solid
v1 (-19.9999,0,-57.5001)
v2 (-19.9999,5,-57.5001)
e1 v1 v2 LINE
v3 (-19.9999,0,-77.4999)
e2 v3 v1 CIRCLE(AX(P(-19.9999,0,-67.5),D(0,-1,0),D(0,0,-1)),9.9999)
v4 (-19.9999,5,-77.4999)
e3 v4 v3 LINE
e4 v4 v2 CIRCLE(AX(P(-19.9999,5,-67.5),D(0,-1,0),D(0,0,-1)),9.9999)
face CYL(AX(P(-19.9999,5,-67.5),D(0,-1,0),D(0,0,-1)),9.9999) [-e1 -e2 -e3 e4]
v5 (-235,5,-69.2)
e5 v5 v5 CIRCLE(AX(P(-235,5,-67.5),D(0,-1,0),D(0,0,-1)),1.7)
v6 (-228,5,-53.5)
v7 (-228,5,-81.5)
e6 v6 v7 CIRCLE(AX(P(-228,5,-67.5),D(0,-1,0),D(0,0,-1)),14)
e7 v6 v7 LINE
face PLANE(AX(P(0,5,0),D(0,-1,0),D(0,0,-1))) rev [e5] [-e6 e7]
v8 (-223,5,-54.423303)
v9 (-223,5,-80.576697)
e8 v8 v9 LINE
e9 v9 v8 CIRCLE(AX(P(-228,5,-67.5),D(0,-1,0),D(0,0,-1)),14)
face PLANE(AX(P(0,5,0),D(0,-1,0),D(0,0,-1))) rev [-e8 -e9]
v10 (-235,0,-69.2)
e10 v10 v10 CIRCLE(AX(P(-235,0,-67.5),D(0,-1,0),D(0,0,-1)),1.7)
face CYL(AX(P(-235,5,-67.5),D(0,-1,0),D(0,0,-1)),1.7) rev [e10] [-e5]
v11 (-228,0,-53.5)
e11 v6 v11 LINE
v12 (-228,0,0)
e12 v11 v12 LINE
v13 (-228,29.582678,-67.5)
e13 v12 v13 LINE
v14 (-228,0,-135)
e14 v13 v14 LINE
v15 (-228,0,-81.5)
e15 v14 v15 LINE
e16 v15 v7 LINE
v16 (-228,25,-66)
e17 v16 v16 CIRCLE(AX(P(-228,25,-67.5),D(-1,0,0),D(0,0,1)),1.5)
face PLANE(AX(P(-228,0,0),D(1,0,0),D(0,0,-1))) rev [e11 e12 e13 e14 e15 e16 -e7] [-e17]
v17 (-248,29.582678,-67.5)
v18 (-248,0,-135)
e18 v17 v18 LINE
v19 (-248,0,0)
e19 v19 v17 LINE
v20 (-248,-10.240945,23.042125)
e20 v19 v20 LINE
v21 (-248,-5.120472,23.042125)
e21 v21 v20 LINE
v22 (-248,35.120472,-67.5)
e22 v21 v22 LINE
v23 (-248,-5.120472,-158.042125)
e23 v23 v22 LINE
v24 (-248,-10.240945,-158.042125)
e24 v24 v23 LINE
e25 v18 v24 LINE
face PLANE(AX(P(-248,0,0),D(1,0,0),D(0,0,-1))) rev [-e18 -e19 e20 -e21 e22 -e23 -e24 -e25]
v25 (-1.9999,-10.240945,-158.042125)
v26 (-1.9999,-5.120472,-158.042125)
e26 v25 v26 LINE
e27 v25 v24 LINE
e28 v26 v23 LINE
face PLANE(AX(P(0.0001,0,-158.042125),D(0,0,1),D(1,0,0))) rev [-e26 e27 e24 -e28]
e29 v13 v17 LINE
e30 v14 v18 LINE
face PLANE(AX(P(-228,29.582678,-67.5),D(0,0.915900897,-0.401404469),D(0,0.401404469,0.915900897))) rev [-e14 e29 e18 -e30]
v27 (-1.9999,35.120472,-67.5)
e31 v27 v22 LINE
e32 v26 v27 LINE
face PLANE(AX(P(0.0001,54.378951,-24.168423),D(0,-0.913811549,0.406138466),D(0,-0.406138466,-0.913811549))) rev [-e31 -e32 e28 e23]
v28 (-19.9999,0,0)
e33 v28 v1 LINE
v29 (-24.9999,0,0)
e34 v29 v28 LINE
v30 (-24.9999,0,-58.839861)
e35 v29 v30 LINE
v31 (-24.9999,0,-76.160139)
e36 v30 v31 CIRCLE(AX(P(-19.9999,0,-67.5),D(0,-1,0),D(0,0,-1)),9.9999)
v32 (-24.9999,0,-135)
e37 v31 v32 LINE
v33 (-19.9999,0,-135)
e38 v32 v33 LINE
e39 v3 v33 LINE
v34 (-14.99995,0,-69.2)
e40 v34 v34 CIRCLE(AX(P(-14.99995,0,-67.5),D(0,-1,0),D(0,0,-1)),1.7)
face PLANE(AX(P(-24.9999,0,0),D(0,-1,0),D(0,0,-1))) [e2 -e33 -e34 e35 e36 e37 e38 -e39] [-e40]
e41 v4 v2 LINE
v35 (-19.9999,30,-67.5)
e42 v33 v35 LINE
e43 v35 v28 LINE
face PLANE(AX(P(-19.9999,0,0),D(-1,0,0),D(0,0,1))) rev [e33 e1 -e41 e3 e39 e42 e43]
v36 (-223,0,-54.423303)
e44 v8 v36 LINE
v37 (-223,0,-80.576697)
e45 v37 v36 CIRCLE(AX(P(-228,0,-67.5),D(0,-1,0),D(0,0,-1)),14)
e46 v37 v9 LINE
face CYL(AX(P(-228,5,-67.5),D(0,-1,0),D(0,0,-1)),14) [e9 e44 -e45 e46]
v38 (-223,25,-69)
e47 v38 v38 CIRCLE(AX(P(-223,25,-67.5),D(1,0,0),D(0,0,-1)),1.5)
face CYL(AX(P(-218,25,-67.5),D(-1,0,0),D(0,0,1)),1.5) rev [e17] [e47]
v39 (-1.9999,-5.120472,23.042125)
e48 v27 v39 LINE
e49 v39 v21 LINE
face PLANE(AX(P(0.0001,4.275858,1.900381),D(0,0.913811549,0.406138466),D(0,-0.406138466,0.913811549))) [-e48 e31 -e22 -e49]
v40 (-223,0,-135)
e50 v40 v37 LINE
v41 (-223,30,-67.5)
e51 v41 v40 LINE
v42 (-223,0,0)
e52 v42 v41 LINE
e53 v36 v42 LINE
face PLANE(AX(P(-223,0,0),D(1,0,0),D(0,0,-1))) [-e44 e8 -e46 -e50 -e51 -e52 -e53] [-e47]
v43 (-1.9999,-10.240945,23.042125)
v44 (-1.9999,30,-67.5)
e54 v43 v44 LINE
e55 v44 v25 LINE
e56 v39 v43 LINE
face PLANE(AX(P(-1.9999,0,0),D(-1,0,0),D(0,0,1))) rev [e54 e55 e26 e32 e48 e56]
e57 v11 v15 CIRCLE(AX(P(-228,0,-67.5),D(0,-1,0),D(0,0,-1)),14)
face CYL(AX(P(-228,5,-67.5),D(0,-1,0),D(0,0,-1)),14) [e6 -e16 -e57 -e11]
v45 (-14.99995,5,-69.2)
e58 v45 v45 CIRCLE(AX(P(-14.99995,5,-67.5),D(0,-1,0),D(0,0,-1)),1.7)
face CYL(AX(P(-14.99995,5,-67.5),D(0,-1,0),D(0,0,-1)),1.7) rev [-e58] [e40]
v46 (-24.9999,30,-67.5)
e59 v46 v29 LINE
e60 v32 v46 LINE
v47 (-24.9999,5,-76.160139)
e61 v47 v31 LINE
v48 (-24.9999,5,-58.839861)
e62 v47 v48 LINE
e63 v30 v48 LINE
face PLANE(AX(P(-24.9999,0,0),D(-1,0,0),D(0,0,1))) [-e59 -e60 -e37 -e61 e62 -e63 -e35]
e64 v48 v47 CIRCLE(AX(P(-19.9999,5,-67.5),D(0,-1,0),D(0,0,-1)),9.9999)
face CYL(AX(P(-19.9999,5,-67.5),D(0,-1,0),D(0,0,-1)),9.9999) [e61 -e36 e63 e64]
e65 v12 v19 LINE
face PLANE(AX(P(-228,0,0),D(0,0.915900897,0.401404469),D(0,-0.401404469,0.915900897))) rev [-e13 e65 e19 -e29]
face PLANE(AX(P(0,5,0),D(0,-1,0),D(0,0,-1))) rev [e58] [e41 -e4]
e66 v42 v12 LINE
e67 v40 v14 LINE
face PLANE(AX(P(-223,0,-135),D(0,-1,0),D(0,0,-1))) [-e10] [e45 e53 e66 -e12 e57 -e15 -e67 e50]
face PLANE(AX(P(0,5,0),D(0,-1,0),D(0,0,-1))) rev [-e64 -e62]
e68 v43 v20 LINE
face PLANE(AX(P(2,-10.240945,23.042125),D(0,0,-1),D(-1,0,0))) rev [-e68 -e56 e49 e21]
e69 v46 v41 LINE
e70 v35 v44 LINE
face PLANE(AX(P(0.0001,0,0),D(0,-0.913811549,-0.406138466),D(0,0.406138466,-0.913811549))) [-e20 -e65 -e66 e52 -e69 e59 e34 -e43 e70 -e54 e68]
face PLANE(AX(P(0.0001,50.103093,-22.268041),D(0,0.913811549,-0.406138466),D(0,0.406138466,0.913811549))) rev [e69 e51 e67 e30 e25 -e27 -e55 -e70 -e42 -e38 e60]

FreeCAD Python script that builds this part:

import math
import FreeCAD as App
import Part
import Sketcher
from FreeCAD import Vector

doc = App.newDocument("Part")
body = doc.addObject("PartDesign::Body", "Body")

sketch1 = body.newObject("Sketcher::SketchObject", "Sketch")
sketch1.AttachmentSupport = (doc.getObject("YZ_Plane"), [""])
sketch1.MapMode = "FlatFace"
sketch1.addGeometry([
    Part.LineSegment(Vector(35, -68, 0), Vector(-5, 23, 0)),
    Part.LineSegment(Vector(-5, 23, 0), Vector(-10, 23, 0)),
    Part.LineSegment(Vector(-10, 23, 0), Vector(0, 0, 0)),
    Part.LineSegment(Vector(0, 0, 0), Vector(30, -68, 0)),
    Part.LineSegment(Vector(30, -68, 0), Vector(0, -135, 0)),
    Part.LineSegment(Vector(0, -135, 0), Vector(-10, -158, 0)),
    Part.LineSegment(Vector(-10, -158, 0), Vector(-5, -158, 0)),
    Part.LineSegment(Vector(-5, -158, 0), Vector(35, -68, 0)),
], False)
sketch1.addConstraint([
    Sketcher.Constraint("Coincident", 0, 2, 1, 1),
    Sketcher.Constraint("Coincident", 1, 2, 2, 1),
    Sketcher.Constraint("Coincident", 2, 2, 3, 1),
    Sketcher.Constraint("Coincident", 3, 2, 4, 1),
    Sketcher.Constraint("Coincident", 4, 2, 5, 1),
    Sketcher.Constraint("Coincident", 5, 2, 6, 1),
    Sketcher.Constraint("Coincident", 6, 2, 7, 1),
    Sketcher.Constraint("Coincident", 7, 2, 0, 1),
    Sketcher.Constraint("Horizontal", 1),
    Sketcher.Constraint("Horizontal", 6),
    Sketcher.Constraint("Coincident", 2, 2, -1, 1),
    Sketcher.Constraint("PointOnObject", 4, 2, -2),
    Sketcher.Constraint("Parallel", 0, 2),
    Sketcher.Constraint("Parallel", 2, 3),
    Sketcher.Constraint("Parallel", 4, 5),
    Sketcher.Constraint("Parallel", 5, 7),
    Sketcher.Constraint("Horizontal", 3, 2, 7, 2),
    Sketcher.Constraint("Vertical", 1, 2, 5, 2),
    Sketcher.Constraint("Equal", 3, 4),
    Sketcher.Constraint("DistanceX", -1, 1, 3, 2, 30.0),
    Sketcher.Constraint("DistanceY", 4, 2, -1, 1, 135.0),
    Sketcher.Constraint("Distance", 2, 25.215402),
    Sketcher.Constraint("DistanceX", 1, 2, 1, 1, 5.120472),
])
pad1 = body.newObject("PartDesign::Pad", "Pad")
pad1.Profile = sketch1
pad1.Type = "TwoLengths"
pad1.Length = 0.0001
pad1.Length2 = 248

sketch2 = body.newObject("Sketcher::SketchObject", "Sketch001")
sketch2.AttachmentSupport = (doc.getObject("YZ_Plane"), [""])
sketch2.MapMode = "FlatFace"
sketch2.AttachmentOffset = App.Placement(Vector(0, 0, 0.0001), App.Rotation())
sketch2.addGeometry([
    Part.LineSegment(Vector(0, 0, 0), Vector(0, -135, 0)),
    Part.LineSegment(Vector(0, -135, 0), Vector(30, -68, 0)),
    Part.LineSegment(Vector(30, -68, 0), Vector(0, 0, 0)),
], False)
sketch2.addConstraint([
    Sketcher.Constraint("Coincident", 0, 2, 1, 1),
    Sketcher.Constraint("Coincident", 1, 2, 2, 1),
    Sketcher.Constraint("Coincident", 2, 2, 0, 1),
    Sketcher.Constraint("Vertical", 0),
    Sketcher.Constraint("Coincident", 2, 2, -1, 1),
    Sketcher.Constraint("Equal", 1, 2),
    Sketcher.Constraint("DistanceY", 0, 2, 0, 1, 135.0),
    Sketcher.Constraint("DistanceX", -1, 1, 1, 2, 30.0),
])
pad2 = body.newObject("PartDesign::Pad", "Pad001")
pad2.Profile = sketch2
pad2.Length = 25
pad2.Reversed = True

sketch3 = body.newObject("Sketcher::SketchObject", "Sketch002")
sketch3.AttachmentSupport = (doc.getObject("YZ_Plane"), [""])
sketch3.MapMode = "FlatFace"
sketch3.AttachmentOffset = App.Placement(Vector(0, 0, 0.0001), App.Rotation())
sketch3.addGeometry([
    Part.LineSegment(Vector(0, 0, 0), Vector(0, -135, 0)),
    Part.LineSegment(Vector(0, -135, 0), Vector(30, -68, 0)),
    Part.LineSegment(Vector(30, -68, 0), Vector(0, 0, 0)),
], False)
sketch3.addConstraint([
    Sketcher.Constraint("Coincident", 0, 2, 1, 1),
    Sketcher.Constraint("Coincident", 1, 2, 2, 1),
    Sketcher.Constraint("Coincident", 2, 2, 0, 1),
    Sketcher.Constraint("Vertical", 0),
    Sketcher.Constraint("Coincident", 2, 2, -1, 1),
    Sketcher.Constraint("Equal", 1, 2),
    Sketcher.Constraint("DistanceY", 0, 2, 0, 1, 135.0),
    Sketcher.Constraint("DistanceX", -1, 1, 1, 2, 30.0),
])
pocket1 = body.newObject("PartDesign::Pocket", "Pocket")
pocket1.Profile = sketch3
pocket1.Length = 20

sketch4 = body.newObject("Sketcher::SketchObject", "Sketch003")
sketch4.AttachmentSupport = (doc.getObject("YZ_Plane"), [""])
sketch4.MapMode = "FlatFace"
sketch4.AttachmentOffset = App.Placement(Vector(0, 0, -248), App.Rotation())
sketch4.addGeometry([
    Part.LineSegment(Vector(0, -135, 0), Vector(0, 0, 0)),
    Part.LineSegment(Vector(0, 0, 0), Vector(30, -68, 0)),
    Part.LineSegment(Vector(30, -68, 0), Vector(0, -135, 0)),
], False)
sketch4.addConstraint([
    Sketcher.Constraint("Coincident", 0, 2, 1, 1),
    Sketcher.Constraint("Coincident", 1, 2, 2, 1),
    Sketcher.Constraint("Coincident", 2, 2, 0, 1),
    Sketcher.Constraint("Vertical", 0),
    Sketcher.Constraint("Coincident", 0, 2, -1, 1),
    Sketcher.Constraint("Equal", 1, 2),
    Sketcher.Constraint("DistanceY", 0, 1, 0, 2, 135.0),
    Sketcher.Constraint("DistanceX", -1, 1, 1, 2, 30.0),
])
pad3 = body.newObject("PartDesign::Pad", "Pad002")
pad3.Profile = sketch4
pad3.Length = 25

sketch5 = body.newObject("Sketcher::SketchObject", "Sketch004")
sketch5.AttachmentSupport = (doc.getObject("YZ_Plane"), [""])
sketch5.MapMode = "FlatFace"
sketch5.AttachmentOffset = App.Placement(Vector(0, 0, -248), App.Rotation())
sketch5.addGeometry([
    Part.LineSegment(Vector(0, -135, 0), Vector(0, 0, 0)),
    Part.LineSegment(Vector(0, 0, 0), Vector(30, -68, 0)),
    Part.LineSegment(Vector(30, -68, 0), Vector(0, -135, 0)),
], False)
sketch5.addConstraint([
    Sketcher.Constraint("Coincident", 0, 2, 1, 1),
    Sketcher.Constraint("Coincident", 1, 2, 2, 1),
    Sketcher.Constraint("Coincident", 2, 2, 0, 1),
    Sketcher.Constraint("Vertical", 0),
    Sketcher.Constraint("Coincident", 0, 2, -1, 1),
    Sketcher.Constraint("Equal", 1, 2),
    Sketcher.Constraint("DistanceY", 0, 1, 0, 2, 135.0),
    Sketcher.Constraint("Distance", 1, 73.69793),
])
pocket2 = body.newObject("PartDesign::Pocket", "Pocket001")
pocket2.Profile = sketch5
pocket2.Length = 20
pocket2.Reversed = True

sketch6 = body.newObject("Sketcher::SketchObject", "Sketch005")
sketch6.AttachmentSupport = (doc.getObject("XZ_Plane"), [""])
sketch6.MapMode = "FlatFace"
sketch6.addGeometry([
    Part.ArcOfCircle(Part.Circle(Vector(-228, -67.5, 0), Vector(0, 0, 1), 14), math.radians(90), math.radians(180)),
    Part.ArcOfCircle(Part.Circle(Vector(-228, -67.5, 0), Vector(0, 0, 1), 14), math.radians(180), math.radians(270)),
    Part.ArcOfCircle(Part.Circle(Vector(-228, -67.5, 0), Vector(0, 0, 1), 14), math.radians(-90), math.radians(-69)),
    Part.ArcOfCircle(Part.Circle(Vector(-228, -67.5, 0), Vector(0, 0, 1), 14), math.radians(-69), math.radians(69)),
    Part.ArcOfCircle(Part.Circle(Vector(-228, -67.5, 0), Vector(0, 0, 1), 14), math.radians(69), math.radians(90)),
    Part.Circle(Vector(-235, -67.5, 0), Vector(0, 0, 1), 1.7),
], False)
sketch6.addConstraint([
    Sketcher.Constraint("Tangent", 0, 2, 1, 1),
    Sketcher.Constraint("Tangent", 1, 2, 2, 1),
    Sketcher.Constraint("Tangent", 2, 2, 3, 1),
    Sketcher.Constraint("Tangent", 3, 2, 4, 1),
    Sketcher.Constraint("Tangent", 4, 2, 0, 1),
    Sketcher.Constraint("Coincident", 2, 3, 0, 3),
    Sketcher.Constraint("Horizontal", 4, 3, 5, 3),
    Sketcher.Constraint("Horizontal", 5, 3, 0, 2),
    Sketcher.Constraint("Vertical", 4, 3, 1, 2),
    Sketcher.Constraint("Vertical", 2, 2, 3, 2),
    Sketcher.Constraint("Vertical", 1, 2, 4, 2),
    Sketcher.Constraint("Radius", 0, 14.0),
    Sketcher.Constraint("Diameter", 5, 3.4),
    Sketcher.Constraint("DistanceX", 0, 3, -1, 1, 228.0),
    Sketcher.Constraint("DistanceX", 5, 3, -1, 1, 235.0),
    Sketcher.Constraint("DistanceX", 2, 2, -1, 1, 223.0),
    Sketcher.Constraint("DistanceY", 0, 3, -1, 1, 67.5),
])
pad4 = body.newObject("PartDesign::Pad", "Pad003")
pad4.Profile = sketch6
pad4.Length = 5
pad4.Reversed = True

sketch7 = body.newObject("Sketcher::SketchObject", "Sketch006")
sketch7.AttachmentSupport = (doc.getObject("XZ_Plane"), [""])
sketch7.MapMode = "FlatFace"
sketch7.addGeometry([
    Part.ArcOfCircle(Part.Circle(Vector(-20, -67.5, 0), Vector(0, 0, 1), 10), math.radians(-90), math.radians(0)),
    Part.ArcOfCircle(Part.Circle(Vector(-20, -67.5, 0), Vector(0, 0, 1), 10), math.radians(0), math.radians(90)),
    Part.ArcOfCircle(Part.Circle(Vector(-20, -67.5, 0), Vector(0, 0, 1), 10), math.radians(90), math.radians(120)),
    Part.ArcOfCircle(Part.Circle(Vector(-20, -67.5, 0), Vector(0, 0, 1), 10), math.radians(120), math.radians(180)),
    Part.ArcOfCircle(Part.Circle(Vector(-20, -67.5, 0), Vector(0, 0, 1), 10), math.radians(180), math.radians(240)),
    Part.ArcOfCircle(Part.Circle(Vector(-20, -67.5, 0), Vector(0, 0, 1), 10), math.radians(-120), math.radians(-90)),
    Part.Circle(Vector(-15, -67.5, 0), Vector(0, 0, 1), 1.7),
], False)
sketch7.addConstraint([
    Sketcher.Constraint("Tangent", 0, 2, 1, 1),
    Sketcher.Constraint("Tangent", 1, 2, 2, 1),
    Sketcher.Constraint("Tangent", 2, 2, 3, 1),
    Sketcher.Constraint("Tangent", 3, 2, 4, 1),
    Sketcher.Constraint("Tangent", 4, 2, 5, 1),
    Sketcher.Constraint("Tangent", 5, 2, 0, 1),
    Sketcher.Constraint("Coincident", 2, 3, 0, 3),
    Sketcher.Constraint("Equal", 2, 3),
    Sketcher.Constraint("Horizontal", 5, 3, 6, 3),
    Sketcher.Constraint("Horizontal", 6, 3, 0, 2),
    Sketcher.Constraint("Horizontal", 0, 2, 3, 2),
    Sketcher.Constraint("Vertical", 5, 3, 1, 2),
    Sketcher.Constraint("Vertical", 2, 2, 4, 2),
    Sketcher.Constraint("Vertical", 1, 2, 5, 2),
    Sketcher.Constraint("Diameter", 6, 3.4),
    Sketcher.Constraint("DistanceX", 0, 2, -1, 1, 10.0),
    Sketcher.Constraint("DistanceX", 2, 2, 1, 2, 5.0),
    Sketcher.Constraint("DistanceY", 0, 3, -1, 1, 67.5),
    Sketcher.Constraint("Radius", 0, 9.9999),
    Sketcher.Constraint("DistanceX", 6, 3, -1, 1, 14.99995),
])
pad5 = body.newObject("PartDesign::Pad", "Pad004")
pad5.Profile = sketch7
pad5.Length = 5
pad5.Reversed = True

sketch8 = body.newObject("Sketcher::SketchObject", "Sketch007")
sketch8.AttachmentSupport = (doc.getObject("YZ_Plane"), [""])
sketch8.MapMode = "FlatFace"
sketch8.AttachmentOffset = App.Placement(Vector(0, 0, -228), App.Rotation())
sketch8.addGeometry(Part.Circle(Vector(25, -67.5, 0), Vector(0, 0, 1), 1.5), False)
sketch8.addConstraint([
    Sketcher.Constraint("Diameter", 0, 3.0),
    Sketcher.Constraint("DistanceX", -1, 1, 0, 3, 25.0),
    Sketcher.Constraint("DistanceY", 0, 3, -1, 1, 67.5),
])
pocket3 = body.newObject("PartDesign::Pocket", "Pocket002")
pocket3.Profile = sketch8
pocket3.Length = 10
pocket3.Reversed = True

sketch9 = body.newObject("Sketcher::SketchObject", "Sketch008")
sketch9.AttachmentSupport = (doc.getObject("YZ_Plane"), [""])
sketch9.MapMode = "FlatFace"
sketch9.AttachmentOffset = App.Placement(Vector(0, 0, -248), App.Rotation())
sketch9.addGeometry([
    Part.LineSegment(Vector(-5, 23, 0), Vector(-10, 23, 0)),
    Part.LineSegment(Vector(-10, 23, 0), Vector(-10, 93, 0)),
    Part.LineSegment(Vector(-10, 93, 0), Vector(-5, 93, 0)),
    Part.LineSegment(Vector(-5, 93, 0), Vector(-5, 23, 0)),
], False)
sketch9.addConstraint([
    Sketcher.Constraint("Coincident", 0, 2, 1, 1),
    Sketcher.Constraint("Coincident", 1, 2, 2, 1),
    Sketcher.Constraint("Coincident", 2, 2, 3, 1),
    Sketcher.Constraint("Coincident", 3, 2, 0, 1),
    Sketcher.Constraint("Horizontal", 0),
    Sketcher.Constraint("Vertical", 1),
    Sketcher.Constraint("Horizontal", 2),
    Sketcher.Constraint("Vertical", 3),
    Sketcher.Constraint("DistanceY", 1, 1, 1, 2, 70.0),
    Sketcher.Constraint("DistanceX", 0, 2, 0, 1, 5.120472),
    Sketcher.Constraint("DistanceX", 0, 2, -1, 1, 10.240945),
    Sketcher.Constraint("DistanceY", -1, 1, 0, 2, 23.042125),
])
pad6 = body.newObject("PartDesign::Pad", "Pad005")
pad6.Profile = sketch9
pad6.Length = 250

sketch10 = body.newObject("Sketcher::SketchObject", "Sketch009")
sketch10.AttachmentSupport = (doc.getObject("YZ_Plane"), [""])
sketch10.MapMode = "FlatFace"
sketch10.AttachmentOffset = App.Placement(Vector(0, 0, -248), App.Rotation())
sketch10.addGeometry([
    Part.LineSegment(Vector(-5, 23, 0), Vector(-10, 23, 0)),
    Part.LineSegment(Vector(-10, 23, 0), Vector(-10, 93, 0)),
    Part.LineSegment(Vector(-10, 93, 0), Vector(-5, 93, 0)),
    Part.LineSegment(Vector(-5, 93, 0), Vector(-5, 23, 0)),
], False)
sketch10.addConstraint([
    Sketcher.Constraint("Coincident", 0, 2, 1, 1),
    Sketcher.Constraint("Coincident", 1, 2, 2, 1),
    Sketcher.Constraint("Coincident", 2, 2, 3, 1),
    Sketcher.Constraint("Coincident", 3, 2, 0, 1),
    Sketcher.Constraint("Horizontal", 0),
    Sketcher.Constraint("Vertical", 1),
    Sketcher.Constraint("Horizontal", 2),
    Sketcher.Constraint("Vertical", 3),
    Sketcher.Constraint("DistanceY", 1, 1, 1, 2, 70.0),
    Sketcher.Constraint("DistanceX", 0, 2, 0, 1, 5.120472),
    Sketcher.Constraint("DistanceX", 0, 2, -1, 1, 10.240945),
    Sketcher.Constraint("DistanceY", -1, 1, 0, 2, 23.042125),
])
pocket4 = body.newObject("PartDesign::Pocket", "Pocket003")
pocket4.Profile = sketch10
pocket4.Length = 250
pocket4.Reversed = True

sketch11 = body.newObject("Sketcher::SketchObject", "Sketch010")
sketch11.AttachmentSupport = (doc.getObject("YZ_Plane"), [""])
sketch11.MapMode = "FlatFace"
sketch11.AttachmentOffset = App.Placement(Vector(0, 0, 0.0001), App.Rotation())
sketch11.addGeometry([
    Part.LineSegment(Vector(35, -68, 0), Vector(-5, 23, 0)),
    Part.LineSegment(Vector(-5, 23, 0), Vector(-10, 23, 0)),
    Part.LineSegment(Vector(-10, 23, 0), Vector(30, -68, 0)),
    Part.LineSegment(Vector(30, -68, 0), Vector(-10, -158, 0)),
    Part.LineSegment(Vector(-10, -158, 0), Vector(-5, -158, 0)),
    Part.LineSegment(Vector(-5, -158, 0), Vector(35, -68, 0)),
], False)
sketch11.addConstraint([
    Sketcher.Constraint("Coincident", 0, 2, 1, 1),
    Sketcher.Constraint("Coincident", 1, 2, 2, 1),
    Sketcher.Constraint("Coincident", 2, 2, 3, 1),
    Sketcher.Constraint("Coincident", 3, 2, 4, 1),
    Sketcher.Constraint("Coincident", 4, 2, 5, 1),
    Sketcher.Constraint("Coincident", 5, 2, 0, 1),
    Sketcher.Constraint("Horizontal", 1),
    Sketcher.Constraint("Horizontal", 4),
    Sketcher.Constraint("Parallel", 0, 2),
    Sketcher.Constraint("Parallel", 3, 5),
    Sketcher.Constraint("Horizontal", 2, 2, 5, 2),
    Sketcher.Constraint("Vertical", 1, 2, 3, 2),
    Sketcher.Constraint("Equal", 2, 3),
    Sketcher.Constraint("DistanceX", -1, 1, 2, 2, 30.0),
    Sketcher.Constraint("DistanceY", 2, 2, -1, 1, 67.5),
    Sketcher.Constraint("DistanceX", 1, 2, 1, 1, 5.120472),
    Sketcher.Constraint("DistanceY", 3, 2, 1, 2, 181.084251),
    Sketcher.Constraint("Distance", 0, 99.081835),
])
pocket5 = body.newObject("PartDesign::Pocket", "Pocket004")
pocket5.Profile = sketch11
pocket5.Length = 2

doc.recompute()
